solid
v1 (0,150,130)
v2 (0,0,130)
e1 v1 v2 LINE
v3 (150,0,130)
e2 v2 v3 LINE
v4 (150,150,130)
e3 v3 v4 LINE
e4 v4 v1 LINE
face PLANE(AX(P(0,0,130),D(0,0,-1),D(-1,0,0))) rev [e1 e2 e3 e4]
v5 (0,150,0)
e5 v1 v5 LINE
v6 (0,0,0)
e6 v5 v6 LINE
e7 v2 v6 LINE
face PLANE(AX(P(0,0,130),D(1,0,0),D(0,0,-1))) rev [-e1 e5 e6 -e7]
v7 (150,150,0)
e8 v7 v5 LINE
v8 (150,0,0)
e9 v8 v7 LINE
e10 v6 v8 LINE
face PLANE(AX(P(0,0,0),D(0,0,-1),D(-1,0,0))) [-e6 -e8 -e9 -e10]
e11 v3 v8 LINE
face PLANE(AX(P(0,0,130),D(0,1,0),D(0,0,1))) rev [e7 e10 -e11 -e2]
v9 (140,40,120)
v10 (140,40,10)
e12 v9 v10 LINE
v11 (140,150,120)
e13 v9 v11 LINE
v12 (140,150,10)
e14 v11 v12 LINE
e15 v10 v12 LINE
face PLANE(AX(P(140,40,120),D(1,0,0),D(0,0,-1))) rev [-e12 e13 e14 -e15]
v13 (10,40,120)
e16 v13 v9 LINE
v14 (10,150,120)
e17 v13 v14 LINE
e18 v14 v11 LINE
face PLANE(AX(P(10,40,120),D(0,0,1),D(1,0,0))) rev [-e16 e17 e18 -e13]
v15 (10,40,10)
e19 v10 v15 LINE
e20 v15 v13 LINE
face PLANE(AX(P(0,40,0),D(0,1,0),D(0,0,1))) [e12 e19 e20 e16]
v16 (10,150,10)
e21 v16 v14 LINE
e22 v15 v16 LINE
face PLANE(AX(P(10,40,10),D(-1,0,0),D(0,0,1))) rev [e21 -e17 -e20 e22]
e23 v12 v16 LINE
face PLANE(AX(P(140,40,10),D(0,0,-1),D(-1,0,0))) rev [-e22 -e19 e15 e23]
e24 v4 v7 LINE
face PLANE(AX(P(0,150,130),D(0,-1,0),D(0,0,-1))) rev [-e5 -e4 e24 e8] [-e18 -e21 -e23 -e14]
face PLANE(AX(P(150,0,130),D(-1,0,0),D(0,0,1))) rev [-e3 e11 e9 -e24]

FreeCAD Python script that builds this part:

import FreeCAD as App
import Part
import Sketcher

V = App.Vector
Q = App.Units.Quantity


def add_polygon(sketch, points):
    """Adds a closed chain of lines whose ends are joined by coincident constraints."""
    first, n = sketch.GeometryCount, len(points)
    for a, b in zip(points, points[1:] + points[:1]):
        sketch.addGeometry(Part.LineSegment(App.Vector(*a, 0), App.Vector(*b, 0)), False)
    for i in range(n):
        sketch.addConstraint(Sketcher.Constraint("Coincident", first + i, 2, first + (i + 1) % n, 1))

doc = App.newDocument("Part")
body = doc.addObject("PartDesign::Body", "Body")

# Sketch on XY plane
sketch1 = body.newObject("Sketcher::SketchObject", "Sketch")
sketch1.AttachmentSupport = (doc.getObject("XY_Plane"), [""])
sketch1.MapMode = "FlatFace"
add_polygon(sketch1, [(0, 150), (0, 0), (150, 0), (150, 150)])  # lines 0-3
sketch1.addConstraint([
    Sketcher.Constraint("Vertical", 0),
    Sketcher.Constraint("Horizontal", 1),
    Sketcher.Constraint("Vertical", 2),
    Sketcher.Constraint("Horizontal", 3),
    Sketcher.Constraint("Coincident", 0, 2, -1, 1),
    Sketcher.Constraint("Equal", 3, 0),
    Sketcher.Constraint("DistanceX", 1, 1, 1, 2, Q("150 mm")),
])
pad1 = body.newObject("PartDesign::Pad", "Pad")
pad1.Profile = sketch1
pad1.Length = 130

# Sketch on XZ plane
sketch2 = body.newObject("Sketcher::SketchObject", "Sketch001")
sketch2.AttachmentSupport = (doc.getObject("XZ_Plane"), [""])
sketch2.MapMode = "FlatFace"
sketch2.AttachmentOffset = App.Placement(V(0, 0, -150), App.Rotation())
add_polygon(sketch2, [(10, 10), (10, 120), (140, 120), (140, 10)])  # lines 0-3
sketch2.addConstraint([
    Sketcher.Constraint("Vertical", 0),
    Sketcher.Constraint("Horizontal", 1),
    Sketcher.Constraint("Vertical", 2),
    Sketcher.Constraint("Horizontal", 3),
    Sketcher.Constraint("DistanceX", 1, 1, 1, 2, Q("130 mm")),
    Sketcher.Constraint("DistanceY", 0, 1, 0, 2, Q("110 mm")),
    Sketcher.Constraint("DistanceX", -1, 1, 0, 2, Q("10 mm")),
    Sketcher.Constraint("DistanceY", -1, 1, 0, 2, Q("120 mm")),
])
pocket1 = body.newObject("PartDesign::Pocket", "Pocket")
pocket1.Profile = sketch2
pocket1.Length = 110
pocket1.Reversed = True

doc.recompute()
